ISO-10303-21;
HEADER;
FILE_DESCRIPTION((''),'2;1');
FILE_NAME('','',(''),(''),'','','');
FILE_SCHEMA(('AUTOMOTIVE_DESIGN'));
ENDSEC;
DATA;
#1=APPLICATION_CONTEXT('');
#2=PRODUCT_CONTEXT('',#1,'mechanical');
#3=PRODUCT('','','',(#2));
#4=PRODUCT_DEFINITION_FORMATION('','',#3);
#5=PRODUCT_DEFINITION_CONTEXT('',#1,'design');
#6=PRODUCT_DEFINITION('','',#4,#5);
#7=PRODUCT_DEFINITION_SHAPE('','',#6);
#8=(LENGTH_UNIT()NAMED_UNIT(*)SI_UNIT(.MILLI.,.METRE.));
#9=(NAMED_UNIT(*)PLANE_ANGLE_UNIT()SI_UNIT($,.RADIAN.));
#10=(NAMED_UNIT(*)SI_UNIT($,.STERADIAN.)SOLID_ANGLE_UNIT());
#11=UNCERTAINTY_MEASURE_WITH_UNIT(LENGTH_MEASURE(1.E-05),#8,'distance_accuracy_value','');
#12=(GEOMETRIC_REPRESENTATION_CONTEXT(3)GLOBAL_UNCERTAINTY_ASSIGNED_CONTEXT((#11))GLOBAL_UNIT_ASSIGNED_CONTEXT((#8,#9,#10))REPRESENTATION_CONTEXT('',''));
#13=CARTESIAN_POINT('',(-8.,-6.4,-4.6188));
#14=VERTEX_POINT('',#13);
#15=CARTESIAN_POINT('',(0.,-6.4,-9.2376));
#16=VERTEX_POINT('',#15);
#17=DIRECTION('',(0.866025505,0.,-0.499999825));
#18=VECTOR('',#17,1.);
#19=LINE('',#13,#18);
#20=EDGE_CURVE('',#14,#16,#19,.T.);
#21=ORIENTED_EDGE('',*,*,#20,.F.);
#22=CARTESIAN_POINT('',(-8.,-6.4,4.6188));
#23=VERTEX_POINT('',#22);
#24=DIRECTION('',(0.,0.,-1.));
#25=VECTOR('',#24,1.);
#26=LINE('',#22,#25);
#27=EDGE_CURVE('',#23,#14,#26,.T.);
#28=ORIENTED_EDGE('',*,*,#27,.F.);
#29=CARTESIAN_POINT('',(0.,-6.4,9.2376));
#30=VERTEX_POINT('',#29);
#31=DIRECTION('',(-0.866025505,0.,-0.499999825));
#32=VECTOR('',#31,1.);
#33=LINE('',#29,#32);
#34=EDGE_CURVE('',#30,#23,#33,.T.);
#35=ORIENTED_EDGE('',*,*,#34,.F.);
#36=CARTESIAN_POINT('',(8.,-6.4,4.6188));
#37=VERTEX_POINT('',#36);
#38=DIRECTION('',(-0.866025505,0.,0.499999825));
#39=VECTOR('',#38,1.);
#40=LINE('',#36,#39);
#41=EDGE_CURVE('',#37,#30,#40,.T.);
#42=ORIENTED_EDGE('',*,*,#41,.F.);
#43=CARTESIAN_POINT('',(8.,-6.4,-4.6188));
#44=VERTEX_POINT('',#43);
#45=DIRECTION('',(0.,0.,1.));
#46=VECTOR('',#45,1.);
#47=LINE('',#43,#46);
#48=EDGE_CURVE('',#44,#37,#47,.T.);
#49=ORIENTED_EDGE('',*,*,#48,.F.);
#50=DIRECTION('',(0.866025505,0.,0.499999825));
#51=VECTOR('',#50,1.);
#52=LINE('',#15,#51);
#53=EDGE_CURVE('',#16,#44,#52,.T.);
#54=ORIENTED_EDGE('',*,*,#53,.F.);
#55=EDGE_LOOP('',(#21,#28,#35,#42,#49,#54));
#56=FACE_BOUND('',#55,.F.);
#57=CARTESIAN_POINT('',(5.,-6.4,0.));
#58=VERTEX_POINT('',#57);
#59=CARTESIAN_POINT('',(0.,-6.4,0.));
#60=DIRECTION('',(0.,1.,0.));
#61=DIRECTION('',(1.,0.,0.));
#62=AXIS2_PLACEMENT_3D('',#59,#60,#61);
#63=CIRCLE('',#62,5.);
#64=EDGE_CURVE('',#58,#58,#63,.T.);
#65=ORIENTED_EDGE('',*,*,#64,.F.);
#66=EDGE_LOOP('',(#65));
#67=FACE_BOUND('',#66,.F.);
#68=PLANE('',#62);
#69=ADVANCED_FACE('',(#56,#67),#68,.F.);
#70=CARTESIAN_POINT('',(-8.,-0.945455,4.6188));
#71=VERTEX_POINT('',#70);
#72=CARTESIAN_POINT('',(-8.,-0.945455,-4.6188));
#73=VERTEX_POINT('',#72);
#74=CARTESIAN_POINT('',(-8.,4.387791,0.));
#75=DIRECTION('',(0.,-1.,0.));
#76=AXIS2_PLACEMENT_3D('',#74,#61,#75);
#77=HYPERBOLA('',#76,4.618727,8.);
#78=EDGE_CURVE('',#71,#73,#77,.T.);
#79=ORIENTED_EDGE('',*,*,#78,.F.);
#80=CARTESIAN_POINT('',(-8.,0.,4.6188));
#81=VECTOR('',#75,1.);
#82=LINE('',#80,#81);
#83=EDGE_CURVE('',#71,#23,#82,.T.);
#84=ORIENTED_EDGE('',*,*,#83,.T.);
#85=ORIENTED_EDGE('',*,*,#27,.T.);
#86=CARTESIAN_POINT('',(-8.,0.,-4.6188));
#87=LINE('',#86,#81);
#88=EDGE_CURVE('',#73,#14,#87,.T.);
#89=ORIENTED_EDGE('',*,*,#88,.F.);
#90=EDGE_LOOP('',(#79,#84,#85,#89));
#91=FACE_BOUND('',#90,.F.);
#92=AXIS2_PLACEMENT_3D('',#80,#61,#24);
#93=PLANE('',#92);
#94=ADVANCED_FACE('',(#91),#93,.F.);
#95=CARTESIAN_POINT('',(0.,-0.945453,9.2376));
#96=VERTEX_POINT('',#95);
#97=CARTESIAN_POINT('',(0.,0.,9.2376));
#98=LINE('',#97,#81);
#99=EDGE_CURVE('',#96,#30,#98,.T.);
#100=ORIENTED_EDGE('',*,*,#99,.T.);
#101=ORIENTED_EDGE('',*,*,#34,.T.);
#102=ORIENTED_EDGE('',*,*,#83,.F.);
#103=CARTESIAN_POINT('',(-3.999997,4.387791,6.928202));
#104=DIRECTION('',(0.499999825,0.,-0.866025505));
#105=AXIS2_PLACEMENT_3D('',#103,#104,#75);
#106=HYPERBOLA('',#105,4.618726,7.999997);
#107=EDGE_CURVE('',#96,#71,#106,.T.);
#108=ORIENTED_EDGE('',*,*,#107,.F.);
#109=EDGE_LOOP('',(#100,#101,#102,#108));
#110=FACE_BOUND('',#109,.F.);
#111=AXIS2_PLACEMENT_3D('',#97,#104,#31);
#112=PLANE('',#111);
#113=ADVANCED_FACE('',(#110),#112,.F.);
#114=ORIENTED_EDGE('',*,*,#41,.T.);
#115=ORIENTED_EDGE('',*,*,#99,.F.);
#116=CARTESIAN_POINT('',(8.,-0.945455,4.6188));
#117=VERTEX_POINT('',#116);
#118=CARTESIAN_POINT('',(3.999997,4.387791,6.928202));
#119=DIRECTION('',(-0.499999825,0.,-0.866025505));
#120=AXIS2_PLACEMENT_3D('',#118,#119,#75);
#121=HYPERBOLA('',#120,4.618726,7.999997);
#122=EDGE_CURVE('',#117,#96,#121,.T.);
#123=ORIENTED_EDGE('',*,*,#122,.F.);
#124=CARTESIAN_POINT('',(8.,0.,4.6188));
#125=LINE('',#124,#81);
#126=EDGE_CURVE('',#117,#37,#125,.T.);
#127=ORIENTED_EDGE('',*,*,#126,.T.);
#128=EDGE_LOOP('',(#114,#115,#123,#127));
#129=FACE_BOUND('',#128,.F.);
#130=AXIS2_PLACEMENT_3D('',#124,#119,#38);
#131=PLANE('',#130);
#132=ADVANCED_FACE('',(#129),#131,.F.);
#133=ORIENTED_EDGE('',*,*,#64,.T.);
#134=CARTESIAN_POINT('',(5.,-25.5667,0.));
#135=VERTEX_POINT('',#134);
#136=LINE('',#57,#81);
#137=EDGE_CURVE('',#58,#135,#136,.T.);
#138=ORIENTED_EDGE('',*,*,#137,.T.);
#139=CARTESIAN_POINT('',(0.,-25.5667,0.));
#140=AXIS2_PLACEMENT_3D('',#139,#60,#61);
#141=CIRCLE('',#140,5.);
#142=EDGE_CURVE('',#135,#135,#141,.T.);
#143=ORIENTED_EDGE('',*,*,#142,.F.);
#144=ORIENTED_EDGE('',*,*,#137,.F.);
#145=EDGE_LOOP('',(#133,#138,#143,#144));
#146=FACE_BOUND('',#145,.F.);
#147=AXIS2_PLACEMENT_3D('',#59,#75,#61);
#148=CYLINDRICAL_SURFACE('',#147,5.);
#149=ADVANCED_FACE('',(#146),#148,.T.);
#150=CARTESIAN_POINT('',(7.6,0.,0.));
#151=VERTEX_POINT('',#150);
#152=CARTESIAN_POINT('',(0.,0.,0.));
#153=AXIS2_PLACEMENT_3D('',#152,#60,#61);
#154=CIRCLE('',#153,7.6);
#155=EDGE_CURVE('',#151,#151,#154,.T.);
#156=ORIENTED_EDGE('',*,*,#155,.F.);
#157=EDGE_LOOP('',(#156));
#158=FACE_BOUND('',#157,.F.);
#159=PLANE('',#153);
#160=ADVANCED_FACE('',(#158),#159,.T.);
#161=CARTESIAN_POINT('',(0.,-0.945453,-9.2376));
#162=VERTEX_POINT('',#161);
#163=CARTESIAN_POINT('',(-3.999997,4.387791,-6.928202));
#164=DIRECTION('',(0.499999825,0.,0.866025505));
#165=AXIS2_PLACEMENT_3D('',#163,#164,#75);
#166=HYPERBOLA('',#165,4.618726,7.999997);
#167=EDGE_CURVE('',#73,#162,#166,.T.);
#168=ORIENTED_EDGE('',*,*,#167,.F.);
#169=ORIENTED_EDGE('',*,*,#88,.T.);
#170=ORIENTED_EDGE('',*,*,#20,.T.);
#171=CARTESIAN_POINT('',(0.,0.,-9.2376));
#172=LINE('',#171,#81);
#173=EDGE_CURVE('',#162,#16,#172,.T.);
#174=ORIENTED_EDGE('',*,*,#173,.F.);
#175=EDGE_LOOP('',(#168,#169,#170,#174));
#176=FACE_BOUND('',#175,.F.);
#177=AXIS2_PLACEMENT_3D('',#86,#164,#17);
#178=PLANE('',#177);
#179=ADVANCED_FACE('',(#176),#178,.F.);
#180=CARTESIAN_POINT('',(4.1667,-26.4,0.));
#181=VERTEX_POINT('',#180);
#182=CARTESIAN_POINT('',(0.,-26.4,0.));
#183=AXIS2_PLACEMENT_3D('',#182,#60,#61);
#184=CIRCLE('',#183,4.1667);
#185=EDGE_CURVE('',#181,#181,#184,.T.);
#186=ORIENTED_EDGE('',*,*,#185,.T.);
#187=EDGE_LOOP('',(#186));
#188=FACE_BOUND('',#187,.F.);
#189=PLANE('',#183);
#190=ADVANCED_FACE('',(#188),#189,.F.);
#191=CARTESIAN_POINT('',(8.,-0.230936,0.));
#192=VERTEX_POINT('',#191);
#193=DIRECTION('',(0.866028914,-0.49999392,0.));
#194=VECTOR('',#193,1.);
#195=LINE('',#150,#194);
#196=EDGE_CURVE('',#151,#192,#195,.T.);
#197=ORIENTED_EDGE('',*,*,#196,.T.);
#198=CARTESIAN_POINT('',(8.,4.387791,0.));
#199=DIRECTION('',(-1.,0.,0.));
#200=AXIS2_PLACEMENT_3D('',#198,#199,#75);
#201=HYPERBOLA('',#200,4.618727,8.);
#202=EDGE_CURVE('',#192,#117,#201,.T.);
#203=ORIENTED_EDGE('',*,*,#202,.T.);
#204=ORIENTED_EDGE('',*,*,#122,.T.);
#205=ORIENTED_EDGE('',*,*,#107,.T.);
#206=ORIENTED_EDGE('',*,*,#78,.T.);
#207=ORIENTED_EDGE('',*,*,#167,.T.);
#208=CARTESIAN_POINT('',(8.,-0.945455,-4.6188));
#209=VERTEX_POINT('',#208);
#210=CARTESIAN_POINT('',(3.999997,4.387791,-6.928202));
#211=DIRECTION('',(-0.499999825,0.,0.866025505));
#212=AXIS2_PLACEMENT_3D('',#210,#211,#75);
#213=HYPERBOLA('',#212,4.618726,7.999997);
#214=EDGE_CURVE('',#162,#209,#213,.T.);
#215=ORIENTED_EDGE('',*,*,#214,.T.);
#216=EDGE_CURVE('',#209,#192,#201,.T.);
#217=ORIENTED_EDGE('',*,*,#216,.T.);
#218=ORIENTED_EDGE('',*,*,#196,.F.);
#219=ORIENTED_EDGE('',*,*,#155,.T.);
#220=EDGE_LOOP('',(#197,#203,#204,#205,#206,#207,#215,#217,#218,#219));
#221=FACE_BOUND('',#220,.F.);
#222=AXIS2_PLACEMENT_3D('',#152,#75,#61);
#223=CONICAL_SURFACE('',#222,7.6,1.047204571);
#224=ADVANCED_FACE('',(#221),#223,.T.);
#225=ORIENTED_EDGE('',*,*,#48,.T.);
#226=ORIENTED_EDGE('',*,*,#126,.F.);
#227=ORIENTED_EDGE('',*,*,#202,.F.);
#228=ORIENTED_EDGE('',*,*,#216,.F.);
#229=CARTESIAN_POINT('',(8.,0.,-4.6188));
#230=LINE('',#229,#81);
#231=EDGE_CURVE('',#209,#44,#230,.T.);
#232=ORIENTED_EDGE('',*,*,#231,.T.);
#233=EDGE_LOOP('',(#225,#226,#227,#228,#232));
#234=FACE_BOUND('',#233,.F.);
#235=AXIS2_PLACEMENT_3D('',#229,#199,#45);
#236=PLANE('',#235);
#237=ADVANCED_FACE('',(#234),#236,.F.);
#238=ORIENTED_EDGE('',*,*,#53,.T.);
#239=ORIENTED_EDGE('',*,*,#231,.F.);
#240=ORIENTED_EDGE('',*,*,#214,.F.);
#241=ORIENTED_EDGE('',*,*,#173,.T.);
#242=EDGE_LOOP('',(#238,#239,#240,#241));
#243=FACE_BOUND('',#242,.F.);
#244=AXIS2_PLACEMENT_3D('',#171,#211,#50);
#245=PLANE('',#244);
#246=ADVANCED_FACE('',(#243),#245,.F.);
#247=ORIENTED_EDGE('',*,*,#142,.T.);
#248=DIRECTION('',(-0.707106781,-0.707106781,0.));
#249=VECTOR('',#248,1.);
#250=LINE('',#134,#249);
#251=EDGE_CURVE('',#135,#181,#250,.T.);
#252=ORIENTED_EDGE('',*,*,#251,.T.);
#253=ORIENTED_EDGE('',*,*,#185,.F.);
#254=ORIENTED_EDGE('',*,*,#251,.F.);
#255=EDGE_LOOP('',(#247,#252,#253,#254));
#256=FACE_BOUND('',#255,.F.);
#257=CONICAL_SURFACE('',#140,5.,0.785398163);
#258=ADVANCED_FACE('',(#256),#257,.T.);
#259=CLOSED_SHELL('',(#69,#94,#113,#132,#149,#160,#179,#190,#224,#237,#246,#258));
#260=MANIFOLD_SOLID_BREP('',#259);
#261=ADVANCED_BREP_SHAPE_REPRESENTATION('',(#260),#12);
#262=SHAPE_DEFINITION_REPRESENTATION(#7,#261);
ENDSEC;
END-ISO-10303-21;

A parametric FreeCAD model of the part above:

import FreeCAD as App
import Part
import Sketcher

V = App.Vector
Q = App.Units.Quantity


def edges_at(feature, points):
    """Names of the edges that pass closest to the given points."""
    edges = feature.Shape.Edges
    near = lambda p: min(range(len(edges)), key=lambda i: edges[i].distToShape(Part.Vertex(*p))[0])
    return sorted({f"Edge{near(p) + 1}" for p in points})

doc = App.newDocument("Part")
params = doc.addObject("Spreadsheet::Sheet", "Params")
for row, (alias, value) in enumerate([
    ("sketch1_height", "20 mm"),
    ("sketch1_width", "5 mm"),
    ("sketch1_width2", "7 mm"),
    ("sketch1_width3", "7.6 mm"),
    ("revolution_angle", "360 deg"),
    ("sketch2_diameter", "24 mm"),
    ("pocket1_length", "6.4 mm"),
    ("chamfer_size", "0.8333 mm"),
], start=1):
    params.set(f"A{row}", alias)
    params.set(f"B{row}", "=" + value)
    params.setAlias(f"B{row}", alias)

body = doc.addObject("PartDesign::Body", "Body")

# Sketch on XY plane
sketch1 = body.newObject("Sketcher::SketchObject", "Sketch")
sketch1.AttachmentSupport = (doc.getObject("XY_Plane"), [""])
sketch1.MapMode = "FlatFace"
sketch1.addGeometry([
    Part.LineSegment(V(7.6, 0, 0), V(0, 0, 0)),  # 0
    Part.LineSegment(V(0, 0, 0), V(0, -26.4, 0)),  # 1
    Part.LineSegment(V(0, -26.4, 0), V(5, -26.4, 0)),  # 2
    Part.LineSegment(V(5, -26.4, 0), V(5, -6.4, 0)),  # 3
    Part.LineSegment(V(5, -6.4, 0), V(12, -6.4, 0)),  # 4
    Part.LineSegment(V(12, -6.4, 0), V(12, -2.5403, 0)),  # 5
    Part.LineSegment(V(12, -2.5403, 0), V(7.6, 0, 0)),  # 6
], False)
sketch1.addConstraint([
    Sketcher.Constraint("Coincident", 0, 2, 1, 1),
    Sketcher.Constraint("Coincident", 1, 2, 2, 1),
    Sketcher.Constraint("Coincident", 2, 2, 3, 1),
    Sketcher.Constraint("Coincident", 3, 2, 4, 1),
    Sketcher.Constraint("Coincident", 4, 2, 5, 1),
    Sketcher.Constraint("Coincident", 5, 2, 6, 1),
    Sketcher.Constraint("Coincident", 6, 2, 0, 1),
    Sketcher.Constraint("Horizontal", 0),
    Sketcher.Constraint("Vertical", 1),
    Sketcher.Constraint("Horizontal", 2),
    Sketcher.Constraint("Vertical", 3),
    Sketcher.Constraint("Horizontal", 4),
    Sketcher.Constraint("Vertical", 5),
    Sketcher.Constraint("Coincident", 0, 2, -1, 1),
    Sketcher.Constraint("DistanceY", 3, 1, 3, 2, Q("20 mm")),
    Sketcher.Constraint("DistanceY", 3, 2, -1, 1, Q("6.4 mm")),
    Sketcher.Constraint("DistanceX", 2, 1, 2, 2, Q("5 mm")),
    Sketcher.Constraint("DistanceX", 4, 1, 4, 2, Q("7 mm")),
    Sketcher.Constraint("Angle", 6, Q("150.0004 deg")),
    Sketcher.Constraint("DistanceX", 0, 2, 0, 1, Q("7.6 mm")),
])
sketch1.setExpression("Constraints[14]", "Params.sketch1_height")
sketch1.setExpression("Constraints[16]", "Params.sketch1_width")
sketch1.setExpression("Constraints[17]", "Params.sketch1_width2")
sketch1.setExpression("Constraints[19]", "Params.sketch1_width3")
revolution = body.newObject("PartDesign::Revolution", "Revolution")
revolution.Profile = sketch1
revolution.ReferenceAxis = (sketch1, ["V_Axis"])
revolution.setExpression("Angle", "Params.revolution_angle")

# Sketch on XZ plane
sketch2 = body.newObject("Sketcher::SketchObject", "Sketch001")
sketch2.AttachmentSupport = (doc.getObject("XZ_Plane"), [""])
sketch2.MapMode = "FlatFace"
sketch2.addGeometry([
    Part.Circle(V(0, 0, 0), V(0, 0, 1), 12),  # 0
    Part.LineSegment(V(8, 4.6188, 0), V(0, 9.2376, 0)),  # 1
    Part.LineSegment(V(0, 9.2376, 0), V(-8, 4.6188, 0)),  # 2
    Part.LineSegment(V(-8, 4.6188, 0), V(-8, -4.6188, 0)),  # 3
    Part.LineSegment(V(-8, -4.6188, 0), V(0, -9.2376, 0)),  # 4
    Part.LineSegment(V(0, -9.2376, 0), V(8, -4.6188, 0)),  # 5
    Part.LineSegment(V(8, -4.6188, 0), V(8, 4.6188, 0)),  # 6
], False)
sketch2.addConstraint([
    Sketcher.Constraint("Coincident", 1, 2, 2, 1),
    Sketcher.Constraint("Coincident", 2, 2, 3, 1),
    Sketcher.Constraint("Coincident", 3, 2, 4, 1),
    Sketcher.Constraint("Coincident", 4, 2, 5, 1),
    Sketcher.Constraint("Coincident", 5, 2, 6, 1),
    Sketcher.Constraint("Coincident", 6, 2, 1, 1),
    Sketcher.Constraint("Vertical", 3),
    Sketcher.Constraint("Vertical", 6),
    Sketcher.Constraint("Coincident", 0, 3, -1, 1),
    Sketcher.Constraint("Symmetric", 1, 2, 4, 2, -1, 1),
    Sketcher.Constraint("Symmetric", 2, 2, 5, 2, -1, 1),
    Sketcher.Constraint("PointOnObject", 1, 2, -2),
    Sketcher.Constraint("Parallel", 1, 4),
    Sketcher.Constraint("Horizontal", 3, 2, 5, 2),
    Sketcher.Constraint("Diameter", 0, Q("24 mm")),
    Sketcher.Constraint("DistanceX", 3, 2, 5, 2, Q("16 mm")),
    Sketcher.Constraint("Angle", 1, Q("150 deg")),
    Sketcher.Constraint("DistanceY", 3, 2, 3, 1, Q("9.2376 mm")),
])
sketch2.setExpression("Constraints[14]", "Params.sketch2_diameter")
pocket1 = body.newObject("PartDesign::Pocket", "Pocket")
pocket1.Profile = sketch2
pocket1.setExpression("Length", "Params.pocket1_length")
pocket1.Reversed = True
doc.recompute()

chamfer = body.newObject("PartDesign::Chamfer", "Chamfer")
chamfer.Base = (pocket1, edges_at(pocket1, [(-5, -26.4, 0)]))
chamfer.setExpression("Size", "Params.chamfer_size")

doc.recompute()
